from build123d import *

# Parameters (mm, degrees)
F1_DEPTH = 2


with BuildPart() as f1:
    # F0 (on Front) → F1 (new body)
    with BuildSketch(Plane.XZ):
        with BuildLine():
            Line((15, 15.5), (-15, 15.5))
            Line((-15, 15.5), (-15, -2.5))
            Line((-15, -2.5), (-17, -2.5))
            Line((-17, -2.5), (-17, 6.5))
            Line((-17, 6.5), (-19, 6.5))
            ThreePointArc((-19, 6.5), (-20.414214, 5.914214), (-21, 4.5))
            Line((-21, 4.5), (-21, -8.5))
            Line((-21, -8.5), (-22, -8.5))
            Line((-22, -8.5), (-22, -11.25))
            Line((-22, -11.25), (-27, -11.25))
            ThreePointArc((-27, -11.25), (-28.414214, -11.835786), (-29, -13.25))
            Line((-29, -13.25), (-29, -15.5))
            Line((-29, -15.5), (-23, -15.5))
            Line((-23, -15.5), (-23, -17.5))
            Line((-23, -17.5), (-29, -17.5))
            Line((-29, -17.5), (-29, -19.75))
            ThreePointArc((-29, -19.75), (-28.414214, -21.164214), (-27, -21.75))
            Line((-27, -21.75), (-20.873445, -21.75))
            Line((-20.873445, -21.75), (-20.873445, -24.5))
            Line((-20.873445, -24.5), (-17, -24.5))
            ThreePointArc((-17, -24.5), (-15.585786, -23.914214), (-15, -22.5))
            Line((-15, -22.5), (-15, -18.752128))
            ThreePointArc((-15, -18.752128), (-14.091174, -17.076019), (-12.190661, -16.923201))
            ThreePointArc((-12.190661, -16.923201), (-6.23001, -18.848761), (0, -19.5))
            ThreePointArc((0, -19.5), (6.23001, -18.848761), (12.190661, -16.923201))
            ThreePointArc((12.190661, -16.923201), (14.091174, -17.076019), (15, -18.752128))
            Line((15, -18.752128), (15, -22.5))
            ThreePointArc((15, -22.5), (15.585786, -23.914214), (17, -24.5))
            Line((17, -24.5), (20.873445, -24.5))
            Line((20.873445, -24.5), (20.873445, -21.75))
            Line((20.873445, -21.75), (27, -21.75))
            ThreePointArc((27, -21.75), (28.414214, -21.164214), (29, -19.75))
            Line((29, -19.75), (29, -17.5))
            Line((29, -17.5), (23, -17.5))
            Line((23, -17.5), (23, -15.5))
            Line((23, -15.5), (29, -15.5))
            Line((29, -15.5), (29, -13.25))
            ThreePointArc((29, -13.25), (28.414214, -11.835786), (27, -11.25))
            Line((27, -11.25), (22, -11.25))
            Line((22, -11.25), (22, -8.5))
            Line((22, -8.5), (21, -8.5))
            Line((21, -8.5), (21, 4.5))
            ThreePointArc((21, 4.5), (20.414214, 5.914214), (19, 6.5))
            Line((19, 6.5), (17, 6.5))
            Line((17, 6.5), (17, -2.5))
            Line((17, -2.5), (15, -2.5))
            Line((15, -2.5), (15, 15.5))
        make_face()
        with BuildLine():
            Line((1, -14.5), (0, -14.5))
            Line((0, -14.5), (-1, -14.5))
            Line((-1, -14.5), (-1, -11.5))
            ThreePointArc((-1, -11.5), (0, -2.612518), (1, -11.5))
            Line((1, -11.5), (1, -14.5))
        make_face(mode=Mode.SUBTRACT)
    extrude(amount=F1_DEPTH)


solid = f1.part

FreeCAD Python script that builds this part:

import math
import FreeCAD as App
import Part
import Sketcher
from FreeCAD import Vector
Q = App.Units.Quantity

doc = App.newDocument("Part")
body = doc.addObject("PartDesign::Body", "Body")

sketch1 = body.newObject("Sketcher::SketchObject", "Sketch")
sketch1.AttachmentSupport = (doc.getObject("XZ_Plane"), [""])
sketch1.MapMode = "FlatFace"
sketch1.addGeometry(Part.LineSegment(Vector(15, 15.5, 0), Vector(-15, 15.5, 0)), False)
sketch1.addGeometry(Part.LineSegment(Vector(-15, 15.5, 0), Vector(-15, -2.5, 0)), False)
sketch1.addGeometry(Part.LineSegment(Vector(-15, -2.5, 0), Vector(-17, -2.5, 0)), False)
sketch1.addGeometry(Part.LineSegment(Vector(-17, -2.5, 0), Vector(-17, 6.5, 0)), False)
sketch1.addGeometry(Part.LineSegment(Vector(-17, 6.5, 0), Vector(-19, 6.5, 0)), False)
sketch1.addGeometry(Part.ArcOfCircle(Part.Circle(Vector(-19.000001, 4.500001, 0), Vector(0, 0, 1), 1.999999), math.radians(89.999957), math.radians(180.000043)), False)
sketch1.addGeometry(Part.LineSegment(Vector(-21, 4.5, 0), Vector(-21, -8.5, 0)), False)
sketch1.addGeometry(Part.LineSegment(Vector(-21, -8.5, 0), Vector(-22, -8.5, 0)), False)
sketch1.addGeometry(Part.LineSegment(Vector(-22, -8.5, 0), Vector(-22, -11.25, 0)), False)
sketch1.addGeometry(Part.LineSegment(Vector(-22, -11.25, 0), Vector(-27, -11.25, 0)), False)
sketch1.addGeometry(Part.ArcOfCircle(Part.Circle(Vector(-27.000001, -13.249999, 0), Vector(0, 0, 1), 1.999999), math.radians(89.999957), math.radians(180.000043)), False)
sketch1.addGeometry(Part.LineSegment(Vector(-29, -13.25, 0), Vector(-29, -15.5, 0)), False)
sketch1.addGeometry(Part.LineSegment(Vector(-29, -15.5, 0), Vector(-23, -15.5, 0)), False)
sketch1.addGeometry(Part.LineSegment(Vector(-23, -15.5, 0), Vector(-23, -17.5, 0)), False)
sketch1.addGeometry(Part.LineSegment(Vector(-23, -17.5, 0), Vector(-29, -17.5, 0)), False)
sketch1.addGeometry(Part.LineSegment(Vector(-29, -17.5, 0), Vector(-29, -19.75, 0)), False)
sketch1.addGeometry(Part.ArcOfCircle(Part.Circle(Vector(-27.000001, -19.750001, 0), Vector(0, 0, 1), 1.999999), math.radians(179.999957), math.radians(270.000043)), False)
sketch1.addGeometry(Part.LineSegment(Vector(-27, -21.75, 0), Vector(-20.873445, -21.75, 0)), False)
sketch1.addGeometry(Part.LineSegment(Vector(-20.873445, -21.75, 0), Vector(-20.873445, -24.5, 0)), False)
sketch1.addGeometry(Part.LineSegment(Vector(-20.873445, -24.5, 0), Vector(-17, -24.5, 0)), False)
sketch1.addGeometry(Part.ArcOfCircle(Part.Circle(Vector(-16.999999, -22.500001, 0), Vector(0, 0, 1), 1.999999), math.radians(-90.000043), math.radians(0.000043)), False)
sketch1.addGeometry(Part.LineSegment(Vector(-15, -22.5, 0), Vector(-15, -18.752128, 0)), False)
sketch1.addGeometry(Part.ArcOfCircle(Part.Circle(Vector(-13, -18.752128, 0), Vector(0, 0, 1), 2), math.radians(66.129598), math.radians(180.000012)), False)
sketch1.addGeometry(Part.ArcOfCircle(Part.Circle(Vector(0.000001, 10.624998, 0), Vector(0, 0, 1), 30.124998), math.radians(-113.870406), math.radians(-90.000002)), False)
sketch1.addGeometry(Part.ArcOfCircle(Part.Circle(Vector(-0.000001, 10.624998, 0), Vector(0, 0, 1), 30.124998), math.radians(-89.999998), math.radians(-66.129594)), False)
sketch1.addGeometry(Part.ArcOfCircle(Part.Circle(Vector(13, -18.752128, 0), Vector(0, 0, 1), 2), math.radians(-0.000012), math.radians(113.870402)), False)
sketch1.addGeometry(Part.LineSegment(Vector(15, -18.752128, 0), Vector(15, -22.5, 0)), False)
sketch1.addGeometry(Part.ArcOfCircle(Part.Circle(Vector(16.999999, -22.500001, 0), Vector(0, 0, 1), 1.999999), math.radians(179.999957), math.radians(270.000043)), False)
sketch1.addGeometry(Part.LineSegment(Vector(17, -24.5, 0), Vector(20.873445, -24.5, 0)), False)
sketch1.addGeometry(Part.LineSegment(Vector(20.873445, -24.5, 0), Vector(20.873445, -21.75, 0)), False)
sketch1.addGeometry(Part.LineSegment(Vector(20.873445, -21.75, 0), Vector(27, -21.75, 0)), False)
sketch1.addGeometry(Part.ArcOfCircle(Part.Circle(Vector(27.000001, -19.750001, 0), Vector(0, 0, 1), 1.999999), math.radians(-90.000043), math.radians(0.000043)), False)
sketch1.addGeometry(Part.LineSegment(Vector(29, -19.75, 0), Vector(29, -17.5, 0)), False)
sketch1.addGeometry(Part.LineSegment(Vector(29, -17.5, 0), Vector(23, -17.5, 0)), False)
sketch1.addGeometry(Part.LineSegment(Vector(23, -17.5, 0), Vector(23, -15.5, 0)), False)
sketch1.addGeometry(Part.LineSegment(Vector(23, -15.5, 0), Vector(29, -15.5, 0)), False)
sketch1.addGeometry(Part.LineSegment(Vector(29, -15.5, 0), Vector(29, -13.25, 0)), False)
sketch1.addGeometry(Part.ArcOfCircle(Part.Circle(Vector(27.000001, -13.249999, 0), Vector(0, 0, 1), 1.999999), math.radians(-0.000043), math.radians(90.000043)), False)
sketch1.addGeometry(Part.LineSegment(Vector(27, -11.25, 0), Vector(22, -11.25, 0)), False)
sketch1.addGeometry(Part.LineSegment(Vector(22, -11.25, 0), Vector(22, -8.5, 0)), False)
sketch1.addGeometry(Part.LineSegment(Vector(22, -8.5, 0), Vector(21, -8.5, 0)), False)
sketch1.addGeometry(Part.LineSegment(Vector(21, -8.5, 0), Vector(21, 4.5, 0)), False)
sketch1.addGeometry(Part.ArcOfCircle(Part.Circle(Vector(19.000001, 4.500001, 0), Vector(0, 0, 1), 1.999999), math.radians(-0.000043), math.radians(90.000043)), False)
sketch1.addGeometry(Part.LineSegment(Vector(19, 6.5, 0), Vector(17, 6.5, 0)), False)
sketch1.addGeometry(Part.LineSegment(Vector(17, 6.5, 0), Vector(17, -2.5, 0)), False)
sketch1.addGeometry(Part.LineSegment(Vector(17, -2.5, 0), Vector(15, -2.5, 0)), False)
sketch1.addGeometry(Part.LineSegment(Vector(15, -2.5, 0), Vector(15, 15.5, 0)), False)
sketch1.addGeometry(Part.LineSegment(Vector(1, -11.5, 0), Vector(1, -14.5, 0)), False)
sketch1.addGeometry(Part.LineSegment(Vector(1, -14.5, 0), Vector(-1, -14.5, 0)), False)
sketch1.addGeometry(Part.LineSegment(Vector(-1, -14.5, 0), Vector(-1, -11.5, 0)), False)
sketch1.addGeometry(Part.ArcOfCircle(Part.Circle(Vector(0, -7.112518, 0), Vector(0, 0, 1), 4.5), math.radians(-77.160411), math.radians(257.160411)), False)
sketch1.addConstraint(Sketcher.Constraint("Coincident", 0, 2, 1, 1))
sketch1.addConstraint(Sketcher.Constraint("Coincident", 1, 2, 2, 1))
sketch1.addConstraint(Sketcher.Constraint("Coincident", 2, 2, 3, 1))
sketch1.addConstraint(Sketcher.Constraint("Coincident", 3, 2, 4, 1))
sketch1.addConstraint(Sketcher.Constraint("Tangent", 4, 2, 5, 1))
sketch1.addConstraint(Sketcher.Constraint("Tangent", 5, 2, 6, 1))
sketch1.addConstraint(Sketcher.Constraint("Coincident", 6, 2, 7, 1))
sketch1.addConstraint(Sketcher.Constraint("Coincident", 7, 2, 8, 1))
sketch1.addConstraint(Sketcher.Constraint("Coincident", 8, 2, 9, 1))
sketch1.addConstraint(Sketcher.Constraint("Tangent", 9, 2, 10, 1))
sketch1.addConstraint(Sketcher.Constraint("Tangent", 10, 2, 11, 1))
sketch1.addConstraint(Sketcher.Constraint("Coincident", 11, 2, 12, 1))
sketch1.addConstraint(Sketcher.Constraint("Coincident", 12, 2, 13, 1))
sketch1.addConstraint(Sketcher.Constraint("Coincident", 13, 2, 14, 1))
sketch1.addConstraint(Sketcher.Constraint("Coincident", 14, 2, 15, 1))
sketch1.addConstraint(Sketcher.Constraint("Tangent", 15, 2, 16, 1))
sketch1.addConstraint(Sketcher.Constraint("Tangent", 16, 2, 17, 1))
sketch1.addConstraint(Sketcher.Constraint("Coincident", 17, 2, 18, 1))
sketch1.addConstraint(Sketcher.Constraint("Coincident", 18, 2, 19, 1))
sketch1.addConstraint(Sketcher.Constraint("Tangent", 19, 2, 20, 1))
sketch1.addConstraint(Sketcher.Constraint("Tangent", 20, 2, 21, 1))
sketch1.addConstraint(Sketcher.Constraint("Tangent", 21, 2, 22, 2))
sketch1.addConstraint(Sketcher.Constraint("Tangent", 22, 1, 23, 1))
sketch1.addConstraint(Sketcher.Constraint("Tangent", 23, 2, 24, 1))
sketch1.addConstraint(Sketcher.Constraint("Tangent", 24, 2, 25, 2))
sketch1.addConstraint(Sketcher.Constraint("Tangent", 25, 1, 26, 1))
sketch1.addConstraint(Sketcher.Constraint("Tangent", 26, 2, 27, 1))
sketch1.addConstraint(Sketcher.Constraint("Tangent", 27, 2, 28, 1))
sketch1.addConstraint(Sketcher.Constraint("Coincident", 28, 2, 29, 1))
sketch1.addConstraint(Sketcher.Constraint("Coincident", 29, 2, 30, 1))
sketch1.addConstraint(Sketcher.Constraint("Tangent", 30, 2, 31, 1))
sketch1.addConstraint(Sketcher.Constraint("Tangent", 31, 2, 32, 1))
sketch1.addConstraint(Sketcher.Constraint("Coincident", 32, 2, 33, 1))
sketch1.addConstraint(Sketcher.Constraint("Coincident", 33, 2, 34, 1))
sketch1.addConstraint(Sketcher.Constraint("Coincident", 34, 2, 35, 1))
sketch1.addConstraint(Sketcher.Constraint("Coincident", 35, 2, 36, 1))
sketch1.addConstraint(Sketcher.Constraint("Tangent", 36, 2, 37, 1))
sketch1.addConstraint(Sketcher.Constraint("Tangent", 37, 2, 38, 1))
sketch1.addConstraint(Sketcher.Constraint("Coincident", 38, 2, 39, 1))
sketch1.addConstraint(Sketcher.Constraint("Coincident", 39, 2, 40, 1))
sketch1.addConstraint(Sketcher.Constraint("Coincident", 40, 2, 41, 1))
sketch1.addConstraint(Sketcher.Constraint("Tangent", 41, 2, 42, 1))
sketch1.addConstraint(Sketcher.Constraint("Tangent", 42, 2, 43, 1))
sketch1.addConstraint(Sketcher.Constraint("Coincident", 43, 2, 44, 1))
sketch1.addConstraint(Sketcher.Constraint("Coincident", 44, 2, 45, 1))
sketch1.addConstraint(Sketcher.Constraint("Coincident", 45, 2, 46, 1))
sketch1.addConstraint(Sketcher.Constraint("Coincident", 46, 2, 0, 1))
sketch1.addConstraint(Sketcher.Constraint("Coincident", 47, 2, 48, 1))
sketch1.addConstraint(Sketcher.Constraint("Coincident", 48, 2, 49, 1))
sketch1.addConstraint(Sketcher.Constraint("Coincident", 49, 2, 50, 2))
sketch1.addConstraint(Sketcher.Constraint("Coincident", 50, 1, 47, 1))
sketch1.addConstraint(Sketcher.Constraint("Horizontal", 0))
sketch1.addConstraint(Sketcher.Constraint("Vertical", 1))
sketch1.addConstraint(Sketcher.Constraint("Horizontal", 2))
sketch1.addConstraint(Sketcher.Constraint("Vertical", 3))
sketch1.addConstraint(Sketcher.Constraint("Horizontal", 4))
sketch1.addConstraint(Sketcher.Constraint("Vertical", 6))
sketch1.addConstraint(Sketcher.Constraint("Horizontal", 7))
sketch1.addConstraint(Sketcher.Constraint("Vertical", 8))
sketch1.addConstraint(Sketcher.Constraint("Horizontal", 9))
sketch1.addConstraint(Sketcher.Constraint("Vertical", 11))
sketch1.addConstraint(Sketcher.Constraint("Horizontal", 12))
sketch1.addConstraint(Sketcher.Constraint("Vertical", 13))
sketch1.addConstraint(Sketcher.Constraint("Horizontal", 14))
sketch1.addConstraint(Sketcher.Constraint("Vertical", 15))
sketch1.addConstraint(Sketcher.Constraint("Horizontal", 17))
sketch1.addConstraint(Sketcher.Constraint("Vertical", 18))
sketch1.addConstraint(Sketcher.Constraint("Horizontal", 19))
sketch1.addConstraint(Sketcher.Constraint("Vertical", 21))
sketch1.addConstraint(Sketcher.Constraint("Vertical", 26))
sketch1.addConstraint(Sketcher.Constraint("Horizontal", 28))
sketch1.addConstraint(Sketcher.Constraint("Vertical", 29))
sketch1.addConstraint(Sketcher.Constraint("Horizontal", 30))
sketch1.addConstraint(Sketcher.Constraint("Vertical", 32))
sketch1.addConstraint(Sketcher.Constraint("Horizontal", 33))
sketch1.addConstraint(Sketcher.Constraint("Vertical", 34))
sketch1.addConstraint(Sketcher.Constraint("Horizontal", 35))
sketch1.addConstraint(Sketcher.Constraint("Vertical", 36))
sketch1.addConstraint(Sketcher.Constraint("Horizontal", 38))
sketch1.addConstraint(Sketcher.Constraint("Vertical", 39))
sketch1.addConstraint(Sketcher.Constraint("Horizontal", 40))
sketch1.addConstraint(Sketcher.Constraint("Vertical", 41))
sketch1.addConstraint(Sketcher.Constraint("Horizontal", 43))
sketch1.addConstraint(Sketcher.Constraint("Vertical", 44))
sketch1.addConstraint(Sketcher.Constraint("Horizontal", 45))
sketch1.addConstraint(Sketcher.Constraint("Vertical", 46))
sketch1.addConstraint(Sketcher.Constraint("Vertical", 47))
sketch1.addConstraint(Sketcher.Constraint("Horizontal", 48))
sketch1.addConstraint(Sketcher.Constraint("Vertical", 49))
sketch1.addConstraint(Sketcher.Constraint("Equal", 5, 10))
sketch1.addConstraint(Sketcher.Constraint("Equal", 10, 16))
sketch1.addConstraint(Sketcher.Constraint("Equal", 16, 20))
sketch1.addConstraint(Sketcher.Constraint("Equal", 20, 22))
sketch1.addConstraint(Sketcher.Constraint("Equal", 23, 24))
sketch1.addConstraint(Sketcher.Constraint("Equal", 22, 25))
sketch1.addConstraint(Sketcher.Constraint("Equal", 25, 27))
sketch1.addConstraint(Sketcher.Constraint("Equal", 27, 31))
sketch1.addConstraint(Sketcher.Constraint("Equal", 31, 37))
sketch1.addConstraint(Sketcher.Constraint("Equal", 37, 42))
sketch1.addConstraint(Sketcher.Constraint("Symmetric", 22, 3, 25, 3, -2))
sketch1.addConstraint(Sketcher.Constraint("Symmetric", 16, 3, 31, 3, -2))
sketch1.addConstraint(Sketcher.Constraint("Symmetric", 10, 3, 37, 3, -2))
sketch1.addConstraint(Sketcher.Constraint("Symmetric", 5, 3, 42, 3, -2))
sketch1.addConstraint(Sketcher.Constraint("Symmetric", 18, 2, 28, 2, -2))
sketch1.addConstraint(Sketcher.Constraint("Symmetric", 13, 2, 33, 2, -2))
sketch1.addConstraint(Sketcher.Constraint("Symmetric", 7, 2, 39, 2, -2))
sketch1.addConstraint(Sketcher.Constraint("Symmetric", 2, 2, 44, 2, -2))
sketch1.addConstraint(Sketcher.Constraint("Symmetric", 49, 2, 50, 1, -2))
sketch1.addConstraint(Sketcher.Constraint("PointOnObject", 23, 2, -2))
sketch1.addConstraint(Sketcher.Constraint("Horizontal", 12, 2, 34, 2))
sketch1.addConstraint(Sketcher.Constraint("Vertical", 10, 3, 16, 3))
sketch1.addConstraint(Sketcher.Constraint("Vertical", 20, 3, 2, 2))
sketch1.addConstraint(Sketcher.Constraint("Vertical", 1, 2, 20, 2))
sketch1.addConstraint(Sketcher.Constraint("Vertical", 26, 2, 45, 2))
sketch1.addConstraint(Sketcher.Constraint("Equal", 2, 4))
sketch1.addConstraint(Sketcher.Constraint("Equal", 45, 48))
sketch1.addConstraint(Sketcher.Constraint("Equal", 48, 13))
sketch1.addConstraint(Sketcher.Constraint("Equal", 11, 15))
sketch1.addConstraint(Sketcher.Constraint("Equal", 8, 18))
sketch1.addConstraint(Sketcher.Constraint("Radius", 5, Q("1.999999 mm")))
sketch1.addConstraint(Sketcher.Constraint("Radius", 50, Q("4.5 mm")))
sketch1.addConstraint(Sketcher.Constraint("DistanceX", 0, 2, 0, 1, Q("30 mm")))
sketch1.addConstraint(Sketcher.Constraint("DistanceX", 7, 2, 7, 1, Q("1 mm")))
sketch1.addConstraint(Sketcher.Constraint("DistanceX", 9, 2, 9, 1, Q("5 mm")))
sketch1.addConstraint(Sketcher.Constraint("DistanceX", 12, 1, 12, 2, Q("6 mm")))
sketch1.addConstraint(Sketcher.Constraint("DistanceY", 1, 2, 1, 1, Q("18 mm")))
sketch1.addConstraint(Sketcher.Constraint("DistanceY", 3, 1, 3, 2, Q("9 mm")))
sketch1.addConstraint(Sketcher.Constraint("DistanceY", 6, 2, 6, 1, Q("13 mm")))
sketch1.addConstraint(Sketcher.Constraint("DistanceY", 47, 2, 47, 1, Q("3 mm")))
sketch1.addConstraint(Sketcher.Constraint("DistanceY", 8, 2, 8, 1, Q("2.75 mm")))
sketch1.addConstraint(Sketcher.Constraint("DistanceY", 11, 2, 11, 1, Q("2.25 mm")))
sketch1.addConstraint(Sketcher.Constraint("DistanceY", -1, 1, 5, 3, Q("4.500001 mm")))
sketch1.addConstraint(Sketcher.Constraint("DistanceY", 23, 2, -1, 1, Q("19.5 mm")))
sketch1.addConstraint(Sketcher.Constraint("DistanceY", 47, 2, -1, 1, Q("14.5 mm")))
sketch1.addConstraint(Sketcher.Constraint("Radius", 23, Q("30.124998 mm")))
sketch1.addConstraint(Sketcher.Constraint("DistanceX", 17, 1, 17, 2, Q("6.126555 mm")))
pad1 = body.newObject("PartDesign::Pad", "Pad")
pad1.Profile = sketch1
pad1.Length = 2

doc.recompute()
